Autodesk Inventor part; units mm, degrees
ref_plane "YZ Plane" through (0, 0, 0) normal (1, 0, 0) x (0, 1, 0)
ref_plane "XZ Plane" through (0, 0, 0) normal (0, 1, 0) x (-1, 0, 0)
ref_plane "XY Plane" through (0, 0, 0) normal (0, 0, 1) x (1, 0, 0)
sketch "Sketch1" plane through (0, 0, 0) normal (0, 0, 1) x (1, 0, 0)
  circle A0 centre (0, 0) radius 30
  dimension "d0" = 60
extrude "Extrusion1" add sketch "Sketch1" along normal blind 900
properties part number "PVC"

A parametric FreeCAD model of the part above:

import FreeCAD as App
import Part
import Sketcher

doc = App.newDocument("Part")
params = doc.addObject("Spreadsheet::Sheet", "Params")
for row, (alias, value) in enumerate([
    ("sketch1_diameter", "60 mm"),
    ("pad1_length", "900 mm"),
], start=1):
    params.set(f"A{row}", alias)
    params.set(f"B{row}", "=" + value)
    params.setAlias(f"B{row}", alias)

body = doc.addObject("PartDesign::Body", "Body")

sketch1 = body.newObject("Sketcher::SketchObject", "Sketch")
sketch1.AttachmentSupport = (doc.getObject("XY_Plane"), [""])
sketch1.MapMode = "FlatFace"
sketch1.addGeometry(Part.Circle(App.Vector(0, 0, 0), App.Vector(0, 0, 1), 30), False)
sketch1.addConstraint([
    Sketcher.Constraint("Coincident", 0, 3, -1, 1),
    Sketcher.Constraint("Diameter", 0, 60.0),
])
sketch1.setExpression("Constraints[1]", "Params.sketch1_diameter")
pad1 = body.newObject("PartDesign::Pad", "Pad")
pad1.Profile = sketch1
pad1.setExpression("Length", "Params.pad1_length")

doc.recompute()
